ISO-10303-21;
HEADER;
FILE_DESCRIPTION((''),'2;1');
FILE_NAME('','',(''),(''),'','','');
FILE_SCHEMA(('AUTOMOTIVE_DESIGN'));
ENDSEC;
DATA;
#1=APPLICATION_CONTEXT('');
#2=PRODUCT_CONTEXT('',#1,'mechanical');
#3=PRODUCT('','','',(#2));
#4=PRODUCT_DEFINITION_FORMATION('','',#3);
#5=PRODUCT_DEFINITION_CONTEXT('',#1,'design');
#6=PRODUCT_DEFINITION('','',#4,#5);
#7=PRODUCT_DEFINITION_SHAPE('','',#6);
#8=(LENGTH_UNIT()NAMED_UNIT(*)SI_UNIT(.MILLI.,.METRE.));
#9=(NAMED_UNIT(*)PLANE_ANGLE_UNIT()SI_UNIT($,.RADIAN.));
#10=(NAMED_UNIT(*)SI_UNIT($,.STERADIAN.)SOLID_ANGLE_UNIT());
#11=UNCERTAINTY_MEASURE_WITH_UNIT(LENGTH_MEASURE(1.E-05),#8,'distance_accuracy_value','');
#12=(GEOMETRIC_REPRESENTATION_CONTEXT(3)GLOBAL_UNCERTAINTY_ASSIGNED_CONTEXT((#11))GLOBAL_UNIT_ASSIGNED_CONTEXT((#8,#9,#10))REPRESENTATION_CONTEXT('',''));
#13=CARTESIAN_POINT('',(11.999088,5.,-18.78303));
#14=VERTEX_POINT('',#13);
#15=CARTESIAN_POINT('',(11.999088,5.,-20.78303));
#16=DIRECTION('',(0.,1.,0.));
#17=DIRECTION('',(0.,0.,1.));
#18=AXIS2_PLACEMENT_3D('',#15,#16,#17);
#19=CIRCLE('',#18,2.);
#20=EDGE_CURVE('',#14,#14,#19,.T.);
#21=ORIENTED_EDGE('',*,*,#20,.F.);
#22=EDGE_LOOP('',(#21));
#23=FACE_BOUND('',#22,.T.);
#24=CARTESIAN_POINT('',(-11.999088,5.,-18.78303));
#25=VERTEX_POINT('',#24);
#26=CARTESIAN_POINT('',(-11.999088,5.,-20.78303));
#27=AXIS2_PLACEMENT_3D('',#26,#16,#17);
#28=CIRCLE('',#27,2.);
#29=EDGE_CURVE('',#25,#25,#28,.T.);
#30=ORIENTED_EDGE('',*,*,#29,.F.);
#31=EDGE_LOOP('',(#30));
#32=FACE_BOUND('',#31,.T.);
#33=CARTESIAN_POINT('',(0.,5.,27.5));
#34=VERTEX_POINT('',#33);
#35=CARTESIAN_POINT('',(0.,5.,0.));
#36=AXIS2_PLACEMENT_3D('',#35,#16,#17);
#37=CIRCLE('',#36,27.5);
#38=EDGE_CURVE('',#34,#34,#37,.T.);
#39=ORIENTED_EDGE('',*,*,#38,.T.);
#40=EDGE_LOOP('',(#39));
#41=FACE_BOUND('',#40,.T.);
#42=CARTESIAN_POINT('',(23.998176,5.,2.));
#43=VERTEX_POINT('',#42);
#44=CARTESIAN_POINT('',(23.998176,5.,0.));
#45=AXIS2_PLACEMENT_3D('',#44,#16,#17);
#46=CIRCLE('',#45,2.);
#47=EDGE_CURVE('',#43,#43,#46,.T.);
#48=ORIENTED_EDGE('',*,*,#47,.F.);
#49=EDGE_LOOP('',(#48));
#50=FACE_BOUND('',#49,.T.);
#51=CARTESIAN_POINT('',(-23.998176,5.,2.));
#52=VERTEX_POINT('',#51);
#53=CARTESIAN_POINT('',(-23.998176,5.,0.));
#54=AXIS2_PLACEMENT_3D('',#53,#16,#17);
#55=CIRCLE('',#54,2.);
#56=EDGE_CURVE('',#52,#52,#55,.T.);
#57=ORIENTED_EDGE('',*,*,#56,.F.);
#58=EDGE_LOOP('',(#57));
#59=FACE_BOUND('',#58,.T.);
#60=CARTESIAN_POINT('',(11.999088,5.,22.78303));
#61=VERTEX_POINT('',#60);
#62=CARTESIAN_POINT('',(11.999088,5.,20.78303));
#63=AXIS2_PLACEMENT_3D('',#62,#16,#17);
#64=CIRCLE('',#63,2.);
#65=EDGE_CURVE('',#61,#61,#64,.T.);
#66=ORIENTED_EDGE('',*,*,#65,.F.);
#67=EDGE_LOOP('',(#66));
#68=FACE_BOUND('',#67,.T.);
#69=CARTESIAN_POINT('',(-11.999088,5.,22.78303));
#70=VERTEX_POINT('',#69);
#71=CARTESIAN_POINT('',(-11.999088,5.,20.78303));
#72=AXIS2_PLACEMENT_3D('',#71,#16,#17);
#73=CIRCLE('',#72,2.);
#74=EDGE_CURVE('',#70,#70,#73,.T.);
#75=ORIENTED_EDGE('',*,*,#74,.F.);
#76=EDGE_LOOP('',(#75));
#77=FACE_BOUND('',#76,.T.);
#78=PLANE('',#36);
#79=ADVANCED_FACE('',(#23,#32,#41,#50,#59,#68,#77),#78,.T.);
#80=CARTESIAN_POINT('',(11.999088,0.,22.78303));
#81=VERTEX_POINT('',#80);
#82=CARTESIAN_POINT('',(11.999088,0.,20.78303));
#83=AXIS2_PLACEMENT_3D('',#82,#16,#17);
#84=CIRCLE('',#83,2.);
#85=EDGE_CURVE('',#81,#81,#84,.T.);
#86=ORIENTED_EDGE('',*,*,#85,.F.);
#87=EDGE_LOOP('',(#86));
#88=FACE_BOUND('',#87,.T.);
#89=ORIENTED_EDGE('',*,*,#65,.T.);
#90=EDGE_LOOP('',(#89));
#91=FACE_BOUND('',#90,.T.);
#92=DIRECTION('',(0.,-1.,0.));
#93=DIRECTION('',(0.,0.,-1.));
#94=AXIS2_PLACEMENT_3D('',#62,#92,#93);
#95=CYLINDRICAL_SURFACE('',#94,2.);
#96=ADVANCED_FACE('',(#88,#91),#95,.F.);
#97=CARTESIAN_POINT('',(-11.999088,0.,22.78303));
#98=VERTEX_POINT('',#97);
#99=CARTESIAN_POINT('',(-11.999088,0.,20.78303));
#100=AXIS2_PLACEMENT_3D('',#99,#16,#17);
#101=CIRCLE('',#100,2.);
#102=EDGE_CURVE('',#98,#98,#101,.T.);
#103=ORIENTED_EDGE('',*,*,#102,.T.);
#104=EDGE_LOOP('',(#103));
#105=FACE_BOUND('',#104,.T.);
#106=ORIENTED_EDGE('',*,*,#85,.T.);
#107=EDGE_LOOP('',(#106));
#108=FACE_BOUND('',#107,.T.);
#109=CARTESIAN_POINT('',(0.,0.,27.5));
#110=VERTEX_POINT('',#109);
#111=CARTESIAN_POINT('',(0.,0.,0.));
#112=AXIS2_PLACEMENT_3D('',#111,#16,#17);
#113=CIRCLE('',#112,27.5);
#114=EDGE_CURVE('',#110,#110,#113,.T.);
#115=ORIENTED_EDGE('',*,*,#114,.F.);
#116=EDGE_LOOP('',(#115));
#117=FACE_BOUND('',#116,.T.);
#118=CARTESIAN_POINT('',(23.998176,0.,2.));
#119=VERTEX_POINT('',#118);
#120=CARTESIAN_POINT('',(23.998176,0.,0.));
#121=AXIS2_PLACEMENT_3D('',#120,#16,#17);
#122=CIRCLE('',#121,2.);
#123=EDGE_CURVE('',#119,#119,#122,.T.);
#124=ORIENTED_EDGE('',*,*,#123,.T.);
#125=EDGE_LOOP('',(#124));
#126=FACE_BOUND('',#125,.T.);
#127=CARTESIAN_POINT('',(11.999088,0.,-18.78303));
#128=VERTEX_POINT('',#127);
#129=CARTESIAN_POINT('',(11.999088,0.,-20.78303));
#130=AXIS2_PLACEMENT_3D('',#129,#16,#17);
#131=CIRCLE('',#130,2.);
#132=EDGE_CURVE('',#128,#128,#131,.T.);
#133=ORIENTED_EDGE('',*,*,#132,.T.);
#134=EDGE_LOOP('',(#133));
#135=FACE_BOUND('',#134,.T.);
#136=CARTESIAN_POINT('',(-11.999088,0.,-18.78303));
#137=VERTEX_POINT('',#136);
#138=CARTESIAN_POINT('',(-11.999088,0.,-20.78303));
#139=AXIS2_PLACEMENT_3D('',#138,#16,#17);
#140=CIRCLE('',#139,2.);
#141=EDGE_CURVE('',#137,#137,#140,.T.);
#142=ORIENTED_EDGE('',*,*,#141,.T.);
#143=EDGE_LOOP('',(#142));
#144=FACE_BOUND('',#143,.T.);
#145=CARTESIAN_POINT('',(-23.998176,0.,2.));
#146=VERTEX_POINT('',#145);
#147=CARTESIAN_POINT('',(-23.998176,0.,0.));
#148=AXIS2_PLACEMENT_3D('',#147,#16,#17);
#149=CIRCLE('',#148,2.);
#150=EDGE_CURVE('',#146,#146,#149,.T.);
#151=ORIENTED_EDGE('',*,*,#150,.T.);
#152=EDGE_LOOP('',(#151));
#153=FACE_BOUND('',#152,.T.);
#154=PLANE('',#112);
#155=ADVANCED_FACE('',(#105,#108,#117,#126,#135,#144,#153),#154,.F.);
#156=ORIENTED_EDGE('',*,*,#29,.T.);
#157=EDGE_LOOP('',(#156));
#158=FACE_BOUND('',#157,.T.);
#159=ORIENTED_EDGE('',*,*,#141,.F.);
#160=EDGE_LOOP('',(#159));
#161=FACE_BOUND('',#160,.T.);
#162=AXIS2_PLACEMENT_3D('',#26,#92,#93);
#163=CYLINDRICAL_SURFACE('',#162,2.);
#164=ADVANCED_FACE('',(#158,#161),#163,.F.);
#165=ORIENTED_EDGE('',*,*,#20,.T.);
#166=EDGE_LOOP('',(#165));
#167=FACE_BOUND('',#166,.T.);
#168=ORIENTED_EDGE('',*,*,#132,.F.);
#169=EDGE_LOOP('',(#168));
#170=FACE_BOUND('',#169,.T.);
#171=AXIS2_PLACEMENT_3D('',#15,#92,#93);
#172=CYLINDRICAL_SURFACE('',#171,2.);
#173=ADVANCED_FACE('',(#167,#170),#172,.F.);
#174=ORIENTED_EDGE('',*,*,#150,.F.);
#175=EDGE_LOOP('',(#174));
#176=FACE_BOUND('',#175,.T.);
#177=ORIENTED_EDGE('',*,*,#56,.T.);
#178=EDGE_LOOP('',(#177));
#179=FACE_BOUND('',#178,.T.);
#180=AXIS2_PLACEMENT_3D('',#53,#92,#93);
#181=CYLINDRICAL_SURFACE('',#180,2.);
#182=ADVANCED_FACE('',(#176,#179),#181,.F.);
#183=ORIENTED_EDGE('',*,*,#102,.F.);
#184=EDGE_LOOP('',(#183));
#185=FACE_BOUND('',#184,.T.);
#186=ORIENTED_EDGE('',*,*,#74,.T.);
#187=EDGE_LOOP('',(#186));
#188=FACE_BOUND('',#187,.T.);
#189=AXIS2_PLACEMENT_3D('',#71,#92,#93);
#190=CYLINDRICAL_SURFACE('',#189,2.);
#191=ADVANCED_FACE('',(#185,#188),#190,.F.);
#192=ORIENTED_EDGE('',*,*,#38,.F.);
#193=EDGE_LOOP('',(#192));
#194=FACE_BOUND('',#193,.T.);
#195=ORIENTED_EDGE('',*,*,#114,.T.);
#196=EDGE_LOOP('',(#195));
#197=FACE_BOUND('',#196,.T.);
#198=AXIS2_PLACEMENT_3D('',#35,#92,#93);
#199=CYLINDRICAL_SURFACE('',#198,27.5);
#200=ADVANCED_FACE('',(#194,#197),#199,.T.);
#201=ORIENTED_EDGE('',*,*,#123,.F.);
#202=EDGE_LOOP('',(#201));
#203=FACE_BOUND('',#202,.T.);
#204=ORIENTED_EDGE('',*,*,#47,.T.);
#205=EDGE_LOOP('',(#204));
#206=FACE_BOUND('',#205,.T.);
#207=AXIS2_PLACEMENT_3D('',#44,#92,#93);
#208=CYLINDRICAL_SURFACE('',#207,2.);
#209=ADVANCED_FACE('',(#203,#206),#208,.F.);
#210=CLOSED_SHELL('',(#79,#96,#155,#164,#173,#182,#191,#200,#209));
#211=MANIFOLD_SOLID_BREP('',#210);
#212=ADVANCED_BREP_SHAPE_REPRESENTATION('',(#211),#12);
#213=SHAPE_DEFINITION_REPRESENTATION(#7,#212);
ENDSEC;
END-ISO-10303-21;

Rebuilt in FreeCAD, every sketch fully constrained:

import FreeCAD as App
import Part
import Sketcher
from FreeCAD import Vector

doc = App.newDocument("Part")
body = doc.addObject("PartDesign::Body", "Body")

# Sketch on XZ plane
sketch1 = doc.addObject("Sketcher::SketchObject", "Sketch")
body.addObject(sketch1)
sketch1.AttachmentSupport = (doc.XZ_Plane, [""])
sketch1.MapMode = "FlatFace"
sketch1.addGeometry(Part.Circle(Vector(0, 0, 0), Vector(0, 0, 1), 27.5), False)
sketch1.addGeometry(Part.Circle(Vector(-11.999088, 20.78303, 0), Vector(0, 0, 1), 2), False)
sketch1.addGeometry(Part.Circle(Vector(11.999088, 20.78303, 0), Vector(0, 0, 1), 2), False)
sketch1.addGeometry(Part.Circle(Vector(-23.998176, 0, 0), Vector(0, 0, 1), 2), False)
sketch1.addGeometry(Part.Circle(Vector(-11.999088, -20.78303, 0), Vector(0, 0, 1), 2), False)
sketch1.addGeometry(Part.Circle(Vector(23.998176, 0, 0), Vector(0, 0, 1), 2), False)
sketch1.addGeometry(Part.Circle(Vector(11.999088, -20.78303, 0), Vector(0, 0, 1), 2), False)
sketch1.addConstraint(Sketcher.Constraint("Coincident", 0, 3, -1, 1))
sketch1.addConstraint(Sketcher.Constraint("Equal", 1, 2))
sketch1.addConstraint(Sketcher.Constraint("Equal", 2, 3))
sketch1.addConstraint(Sketcher.Constraint("Equal", 3, 4))
sketch1.addConstraint(Sketcher.Constraint("Equal", 4, 5))
sketch1.addConstraint(Sketcher.Constraint("Equal", 5, 6))
sketch1.addConstraint(Sketcher.Constraint("Symmetric", 2, 3, 4, 3, -1, 1))
sketch1.addConstraint(Sketcher.Constraint("Symmetric", 3, 3, 5, 3, -1, 1))
sketch1.addConstraint(Sketcher.Constraint("Symmetric", 1, 3, 6, 3, -1, 1))
sketch1.addConstraint(Sketcher.Constraint("Symmetric", 1, 3, 2, 3, -2))
sketch1.addConstraint(Sketcher.Constraint("PointOnObject", 3, 3, -1))
sketch1.addConstraint(Sketcher.Constraint("Diameter", 0, 55.0))
sketch1.addConstraint(Sketcher.Constraint("Diameter", 1, 4.0))
sketch1.addConstraint(Sketcher.Constraint("DistanceY", -1, 1, 1, 3, 20.78303))
sketch1.addConstraint(Sketcher.Constraint("DistanceX", 3, 3, 5, 3, 47.996352))
sketch1.addConstraint(Sketcher.Constraint("DistanceX", 1, 3, -1, 1, 11.999088))
pad1 = doc.addObject("PartDesign::Pad", "Pad")
body.addObject(pad1)
pad1.Profile = sketch1
pad1.Length = 5
pad1.Reversed = True

doc.recompute()
